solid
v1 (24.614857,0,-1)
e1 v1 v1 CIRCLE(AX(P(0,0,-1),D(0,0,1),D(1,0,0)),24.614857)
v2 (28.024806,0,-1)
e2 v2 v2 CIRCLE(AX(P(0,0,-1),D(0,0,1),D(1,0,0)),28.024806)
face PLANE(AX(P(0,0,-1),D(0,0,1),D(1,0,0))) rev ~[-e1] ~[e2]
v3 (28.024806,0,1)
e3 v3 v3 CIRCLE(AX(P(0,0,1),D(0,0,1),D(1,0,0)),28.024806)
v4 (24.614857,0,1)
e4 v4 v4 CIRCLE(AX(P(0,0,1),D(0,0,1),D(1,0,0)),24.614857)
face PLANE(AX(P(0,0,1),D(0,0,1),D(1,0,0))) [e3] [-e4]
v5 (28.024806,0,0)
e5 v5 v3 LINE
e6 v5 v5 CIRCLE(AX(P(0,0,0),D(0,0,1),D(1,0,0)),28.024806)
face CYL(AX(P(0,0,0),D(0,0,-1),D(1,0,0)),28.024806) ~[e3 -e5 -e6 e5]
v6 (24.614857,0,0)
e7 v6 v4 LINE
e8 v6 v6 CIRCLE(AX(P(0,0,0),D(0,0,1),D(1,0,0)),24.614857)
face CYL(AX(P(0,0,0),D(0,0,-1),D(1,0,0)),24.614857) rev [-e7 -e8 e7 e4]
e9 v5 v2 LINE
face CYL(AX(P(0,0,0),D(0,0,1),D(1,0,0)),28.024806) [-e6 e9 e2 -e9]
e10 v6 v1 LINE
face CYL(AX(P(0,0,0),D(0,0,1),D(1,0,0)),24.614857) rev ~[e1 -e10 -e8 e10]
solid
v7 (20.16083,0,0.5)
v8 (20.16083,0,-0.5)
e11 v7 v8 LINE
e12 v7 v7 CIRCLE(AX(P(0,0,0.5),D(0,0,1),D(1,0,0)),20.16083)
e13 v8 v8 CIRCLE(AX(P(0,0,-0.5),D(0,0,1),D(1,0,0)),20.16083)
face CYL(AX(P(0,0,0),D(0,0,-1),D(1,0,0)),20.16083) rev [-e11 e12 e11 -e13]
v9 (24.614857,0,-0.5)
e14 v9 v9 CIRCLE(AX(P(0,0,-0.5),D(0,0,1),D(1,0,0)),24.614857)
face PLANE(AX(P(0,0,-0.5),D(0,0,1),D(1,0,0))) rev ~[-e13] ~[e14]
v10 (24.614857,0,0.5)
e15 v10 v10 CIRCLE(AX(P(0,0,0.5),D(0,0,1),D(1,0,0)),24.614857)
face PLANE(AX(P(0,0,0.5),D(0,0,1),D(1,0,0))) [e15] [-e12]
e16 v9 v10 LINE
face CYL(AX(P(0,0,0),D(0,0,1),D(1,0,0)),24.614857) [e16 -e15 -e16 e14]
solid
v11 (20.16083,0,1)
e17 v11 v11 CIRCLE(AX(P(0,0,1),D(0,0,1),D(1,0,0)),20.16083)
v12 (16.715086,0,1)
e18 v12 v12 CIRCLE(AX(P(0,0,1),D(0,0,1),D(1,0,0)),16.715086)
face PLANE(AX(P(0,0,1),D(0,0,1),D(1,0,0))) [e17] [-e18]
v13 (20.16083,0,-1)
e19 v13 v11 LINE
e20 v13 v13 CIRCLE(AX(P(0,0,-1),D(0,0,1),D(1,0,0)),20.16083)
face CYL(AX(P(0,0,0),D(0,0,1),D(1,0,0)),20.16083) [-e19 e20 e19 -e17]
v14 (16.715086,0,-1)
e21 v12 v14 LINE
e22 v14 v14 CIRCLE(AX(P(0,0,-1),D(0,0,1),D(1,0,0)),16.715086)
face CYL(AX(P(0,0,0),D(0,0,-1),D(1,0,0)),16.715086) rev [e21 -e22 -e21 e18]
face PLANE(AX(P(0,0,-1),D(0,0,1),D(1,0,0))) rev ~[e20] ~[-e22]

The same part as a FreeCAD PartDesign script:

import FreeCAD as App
import Part
import Sketcher

V = App.Vector

doc = App.newDocument("Part")
body = doc.addObject("PartDesign::Body", "Body")
body.AllowCompound = True

sketch1 = body.newObject("Sketcher::SketchObject", "Sketch")
sketch1.AttachmentSupport = (doc.getObject("XY_Plane"), [""])
sketch1.MapMode = "FlatFace"
sketch1.addGeometry(Part.Circle(V(0, 0, 0), V(0, 0, 1), 28), False)
sketch1.addGeometry(Part.Circle(V(0, 0, 0), V(0, 0, 1), 25), False)
sketch1.addGeometry(Part.Circle(V(0, 0, 0), V(0, 0, 1), 20), False)
sketch1.addGeometry(Part.Circle(V(0, 0, 0), V(0, 0, 1), 17), False)
sketch1.addConstraint(Sketcher.Constraint("Coincident", 0, 3, -1, 1))
sketch1.addConstraint(Sketcher.Constraint("Coincident", 1, 3, -1, 1))
sketch1.addConstraint(Sketcher.Constraint("Coincident", 2, 3, -1, 1))
sketch1.addConstraint(Sketcher.Constraint("Coincident", 3, 3, -1, 1))
sketch1.addConstraint(Sketcher.Constraint("Diameter", 2, 40.32166))
sketch1.addConstraint(Sketcher.Constraint("Diameter", 0, 56.049612))
sketch1.addConstraint(Sketcher.Constraint("Diameter", 1, 49.229714))
sketch1.addConstraint(Sketcher.Constraint("Diameter", 3, 33.430172))
pad1 = body.newObject("PartDesign::Pad", "Pad")
pad1.Profile = sketch1
pad1.Length = 2
pad1.Midplane = True
body2 = doc.addObject("PartDesign::Body", "Body001")

sketch2 = body2.newObject("Sketcher::SketchObject", "Sketch001")
sketch2.AttachmentSupport = (doc.getObject("XY_Plane001"), [""])
sketch2.MapMode = "FlatFace"
sketch2.addGeometry(Part.Circle(V(0, 0, 0), V(0, 0, 1), 25), False)
sketch2.addGeometry(Part.Circle(V(0, 0, 0), V(0, 0, 1), 20), False)
sketch2.addConstraint(Sketcher.Constraint("Coincident", 0, 3, -1, 1))
sketch2.addConstraint(Sketcher.Constraint("Coincident", 1, 3, -1, 1))
sketch2.addConstraint(Sketcher.Constraint("Diameter", 1, 40.32166))
sketch2.addConstraint(Sketcher.Constraint("Diameter", 0, 49.229714))
pad2 = body2.newObject("PartDesign::Pad", "Pad001")
pad2.Profile = sketch2
pad2.Length = 1
pad2.Midplane = True

doc.recompute()
